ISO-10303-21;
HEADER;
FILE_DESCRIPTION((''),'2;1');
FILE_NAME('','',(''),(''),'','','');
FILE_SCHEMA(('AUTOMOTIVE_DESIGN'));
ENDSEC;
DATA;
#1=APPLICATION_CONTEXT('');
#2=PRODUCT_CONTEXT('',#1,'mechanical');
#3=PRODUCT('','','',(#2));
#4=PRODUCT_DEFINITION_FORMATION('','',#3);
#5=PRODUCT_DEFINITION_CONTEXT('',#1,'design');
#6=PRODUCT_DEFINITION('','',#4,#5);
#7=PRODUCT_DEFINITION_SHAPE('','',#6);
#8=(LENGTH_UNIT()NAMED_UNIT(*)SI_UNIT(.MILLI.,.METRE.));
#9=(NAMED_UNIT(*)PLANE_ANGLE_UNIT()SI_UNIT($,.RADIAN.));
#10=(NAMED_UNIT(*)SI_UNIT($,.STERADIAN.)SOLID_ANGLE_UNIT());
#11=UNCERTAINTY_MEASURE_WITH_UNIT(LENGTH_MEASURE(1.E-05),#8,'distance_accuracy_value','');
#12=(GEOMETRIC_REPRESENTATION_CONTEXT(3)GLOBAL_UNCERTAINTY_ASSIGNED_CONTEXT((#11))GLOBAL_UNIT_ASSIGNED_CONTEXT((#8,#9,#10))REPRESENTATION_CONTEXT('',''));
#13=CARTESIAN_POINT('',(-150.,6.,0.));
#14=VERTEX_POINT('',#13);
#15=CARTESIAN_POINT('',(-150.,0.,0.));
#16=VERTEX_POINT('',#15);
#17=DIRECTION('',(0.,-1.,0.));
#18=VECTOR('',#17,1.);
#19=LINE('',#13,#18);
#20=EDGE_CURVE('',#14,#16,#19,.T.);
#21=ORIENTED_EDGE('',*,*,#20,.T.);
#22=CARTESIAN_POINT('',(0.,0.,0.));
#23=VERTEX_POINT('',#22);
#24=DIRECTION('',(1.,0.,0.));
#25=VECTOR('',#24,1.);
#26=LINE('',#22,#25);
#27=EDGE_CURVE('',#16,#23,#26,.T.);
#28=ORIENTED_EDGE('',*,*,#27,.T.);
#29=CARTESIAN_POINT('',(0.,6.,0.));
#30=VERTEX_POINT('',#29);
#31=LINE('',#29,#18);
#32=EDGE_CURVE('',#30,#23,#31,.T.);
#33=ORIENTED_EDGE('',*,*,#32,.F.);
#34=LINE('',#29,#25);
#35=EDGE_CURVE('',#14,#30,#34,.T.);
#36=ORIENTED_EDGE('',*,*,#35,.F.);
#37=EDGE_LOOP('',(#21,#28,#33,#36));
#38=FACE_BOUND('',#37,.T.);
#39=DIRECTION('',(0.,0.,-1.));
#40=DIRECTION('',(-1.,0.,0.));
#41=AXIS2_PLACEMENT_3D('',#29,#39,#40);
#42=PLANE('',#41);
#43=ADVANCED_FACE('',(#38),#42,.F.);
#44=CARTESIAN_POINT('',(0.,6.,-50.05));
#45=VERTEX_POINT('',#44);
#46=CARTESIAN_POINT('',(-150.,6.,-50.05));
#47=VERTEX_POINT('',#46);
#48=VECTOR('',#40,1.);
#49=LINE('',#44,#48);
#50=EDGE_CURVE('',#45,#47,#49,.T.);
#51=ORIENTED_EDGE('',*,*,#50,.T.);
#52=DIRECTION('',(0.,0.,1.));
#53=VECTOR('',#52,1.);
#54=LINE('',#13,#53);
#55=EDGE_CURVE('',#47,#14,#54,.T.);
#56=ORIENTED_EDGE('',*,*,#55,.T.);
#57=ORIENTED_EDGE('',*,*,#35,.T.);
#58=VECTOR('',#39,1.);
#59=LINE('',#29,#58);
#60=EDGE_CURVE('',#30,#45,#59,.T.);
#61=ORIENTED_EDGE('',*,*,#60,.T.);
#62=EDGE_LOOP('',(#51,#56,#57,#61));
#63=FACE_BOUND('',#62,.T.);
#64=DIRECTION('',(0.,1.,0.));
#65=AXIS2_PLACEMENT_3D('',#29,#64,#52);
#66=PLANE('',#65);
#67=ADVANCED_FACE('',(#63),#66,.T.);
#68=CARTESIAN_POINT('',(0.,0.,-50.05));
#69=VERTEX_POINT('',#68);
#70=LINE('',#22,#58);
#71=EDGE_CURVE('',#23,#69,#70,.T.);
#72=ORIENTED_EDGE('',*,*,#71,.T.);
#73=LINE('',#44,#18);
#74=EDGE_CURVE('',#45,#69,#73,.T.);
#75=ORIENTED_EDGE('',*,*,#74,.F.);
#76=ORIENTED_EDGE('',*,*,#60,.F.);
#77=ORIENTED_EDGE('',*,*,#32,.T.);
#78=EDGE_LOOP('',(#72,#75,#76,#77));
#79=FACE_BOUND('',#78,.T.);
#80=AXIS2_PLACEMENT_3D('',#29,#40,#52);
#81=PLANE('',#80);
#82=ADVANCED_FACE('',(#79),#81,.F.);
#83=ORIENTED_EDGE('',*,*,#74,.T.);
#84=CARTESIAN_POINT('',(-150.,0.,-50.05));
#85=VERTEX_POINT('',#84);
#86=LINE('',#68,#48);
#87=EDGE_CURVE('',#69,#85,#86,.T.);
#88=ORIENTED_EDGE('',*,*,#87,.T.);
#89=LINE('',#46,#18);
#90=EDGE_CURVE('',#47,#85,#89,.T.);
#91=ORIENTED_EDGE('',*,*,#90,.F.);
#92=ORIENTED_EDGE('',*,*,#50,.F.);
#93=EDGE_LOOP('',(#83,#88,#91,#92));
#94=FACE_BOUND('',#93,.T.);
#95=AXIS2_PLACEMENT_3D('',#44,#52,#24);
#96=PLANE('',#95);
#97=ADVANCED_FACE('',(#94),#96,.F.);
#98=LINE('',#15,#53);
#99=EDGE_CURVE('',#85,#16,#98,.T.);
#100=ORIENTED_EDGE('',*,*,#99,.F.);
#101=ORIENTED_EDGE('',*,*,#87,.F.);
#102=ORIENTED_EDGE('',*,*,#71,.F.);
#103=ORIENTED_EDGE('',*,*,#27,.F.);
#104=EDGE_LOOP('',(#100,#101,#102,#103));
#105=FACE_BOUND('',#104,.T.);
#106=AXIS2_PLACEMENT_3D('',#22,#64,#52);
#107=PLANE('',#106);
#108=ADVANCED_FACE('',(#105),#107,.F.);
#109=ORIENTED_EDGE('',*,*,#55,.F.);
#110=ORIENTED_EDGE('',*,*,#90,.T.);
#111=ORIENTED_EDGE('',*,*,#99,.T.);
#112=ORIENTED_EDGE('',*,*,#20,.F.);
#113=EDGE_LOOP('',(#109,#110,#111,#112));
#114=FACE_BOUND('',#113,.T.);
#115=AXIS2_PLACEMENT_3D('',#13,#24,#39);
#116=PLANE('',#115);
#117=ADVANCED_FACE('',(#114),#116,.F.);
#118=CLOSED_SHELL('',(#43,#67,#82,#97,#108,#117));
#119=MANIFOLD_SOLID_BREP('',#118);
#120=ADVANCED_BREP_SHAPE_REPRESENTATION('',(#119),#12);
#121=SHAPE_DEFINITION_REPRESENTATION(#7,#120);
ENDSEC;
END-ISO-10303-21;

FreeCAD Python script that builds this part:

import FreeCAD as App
import Part
import Sketcher

doc = App.newDocument("Part")
body = doc.addObject("PartDesign::Body", "Body")

# Sketch on XZ plane
sketch1 = doc.addObject("Sketcher::SketchObject", "Sketch")
body.addObject(sketch1)
sketch1.AttachmentSupport = (doc.XZ_Plane, [""])
sketch1.MapMode = "FlatFace"
sketch1.addGeometry([
    Part.LineSegment(App.Vector(-150, -50.05, 0), App.Vector(-150, 0, 0)),
    Part.LineSegment(App.Vector(-150, 0, 0), App.Vector(0, 0, 0)),
    Part.LineSegment(App.Vector(0, 0, 0), App.Vector(0, -50.05, 0)),
    Part.LineSegment(App.Vector(0, -50.05, 0), App.Vector(-150, -50.05, 0)),
], False)
sketch1.addConstraint([
    Sketcher.Constraint("Coincident", 0, 2, 1, 1),
    Sketcher.Constraint("Coincident", 1, 2, 2, 1),
    Sketcher.Constraint("Coincident", 2, 2, 3, 1),
    Sketcher.Constraint("Coincident", 3, 2, 0, 1),
    Sketcher.Constraint("Vertical", 0),
    Sketcher.Constraint("Horizontal", 1),
    Sketcher.Constraint("Vertical", 2),
    Sketcher.Constraint("Horizontal", 3),
    Sketcher.Constraint("Coincident", 1, 2, -1, 1),
    Sketcher.Constraint("DistanceX", 1, 1, 1, 2, 150.0),
    Sketcher.Constraint("DistanceY", 0, 1, 0, 2, 50.05),
])
pad1 = doc.addObject("PartDesign::Pad", "Pad")
body.addObject(pad1)
pad1.Profile = sketch1
pad1.Length = 6
pad1.Reversed = True

doc.recompute()
